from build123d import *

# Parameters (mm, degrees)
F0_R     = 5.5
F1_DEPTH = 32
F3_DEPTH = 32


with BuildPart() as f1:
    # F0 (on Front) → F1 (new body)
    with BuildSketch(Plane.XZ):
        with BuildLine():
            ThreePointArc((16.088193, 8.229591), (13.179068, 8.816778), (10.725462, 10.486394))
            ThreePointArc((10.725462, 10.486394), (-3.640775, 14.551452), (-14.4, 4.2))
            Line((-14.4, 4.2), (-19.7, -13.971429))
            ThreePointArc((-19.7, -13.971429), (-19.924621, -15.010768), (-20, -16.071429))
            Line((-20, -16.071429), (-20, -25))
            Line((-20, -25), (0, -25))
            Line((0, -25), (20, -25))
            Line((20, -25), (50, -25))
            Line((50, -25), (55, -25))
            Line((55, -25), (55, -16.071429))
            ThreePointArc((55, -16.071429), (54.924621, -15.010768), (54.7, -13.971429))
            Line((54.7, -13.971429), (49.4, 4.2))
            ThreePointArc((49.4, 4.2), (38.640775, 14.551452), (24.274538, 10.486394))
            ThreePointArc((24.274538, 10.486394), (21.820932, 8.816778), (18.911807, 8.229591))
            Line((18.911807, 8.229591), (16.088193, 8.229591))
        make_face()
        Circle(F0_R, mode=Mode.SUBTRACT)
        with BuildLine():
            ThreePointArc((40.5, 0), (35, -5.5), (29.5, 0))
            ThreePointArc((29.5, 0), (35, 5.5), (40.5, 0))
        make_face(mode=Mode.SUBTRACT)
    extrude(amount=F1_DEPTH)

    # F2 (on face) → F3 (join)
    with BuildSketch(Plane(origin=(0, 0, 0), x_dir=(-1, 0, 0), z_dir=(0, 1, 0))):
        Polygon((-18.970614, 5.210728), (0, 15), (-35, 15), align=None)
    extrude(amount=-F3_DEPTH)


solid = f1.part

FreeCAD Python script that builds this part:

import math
import FreeCAD as App
import Part
import Sketcher
Q = App.Units.Quantity


def add_polygon(sketch, points):
    """Adds a closed chain of lines whose ends are joined by coincident constraints."""
    first, n = sketch.GeometryCount, len(points)
    for a, b in zip(points, points[1:] + points[:1]):
        sketch.addGeometry(Part.LineSegment(App.Vector(*a, 0), App.Vector(*b, 0)), False)
    for i in range(n):
        sketch.addConstraint(Sketcher.Constraint("Coincident", first + i, 2, first + (i + 1) % n, 1))

doc = App.newDocument("Part")
body = doc.addObject("PartDesign::Body", "Body")

# Sketch on XZ plane
sketch1 = body.newObject("Sketcher::SketchObject", "Sketch")
sketch1.AttachmentSupport = (doc.getObject("XZ_Plane"), [""])
sketch1.MapMode = "FlatFace"
sketch1.addGeometry([
    Part.ArcOfCircle(Part.Circle(App.Vector(16.1, 15.7, 0), App.Vector(0, 0, 1), 7.5), math.radians(-136), math.radians(-90)),  # 0
    Part.ArcOfCircle(Part.Circle(App.Vector(0, 0, 0), App.Vector(0, 0, 1), 15), math.radians(44), math.radians(164)),  # 1
    Part.LineSegment(App.Vector(-14.4, 4.2, 0), App.Vector(-19.7, -14, 0)),  # 2
    Part.ArcOfCircle(Part.Circle(App.Vector(-12.5, -16.1, 0), App.Vector(0, 0, 1), 7.5), math.radians(163.74), math.radians(180)),  # 3
    Part.LineSegment(App.Vector(-20, -16.1, 0), App.Vector(-20, -25, 0)),  # 4
    Part.LineSegment(App.Vector(-20, -25, 0), App.Vector(55, -25, 0)),  # 5
    Part.LineSegment(App.Vector(55, -25, 0), App.Vector(55, -16.1, 0)),  # 6
    Part.ArcOfCircle(Part.Circle(App.Vector(47.5, -16.1, 0), App.Vector(0, 0, 1), 7.5), math.radians(0), math.radians(16.26)),  # 7
    Part.LineSegment(App.Vector(54.7, -14, 0), App.Vector(49.4, 4.2, 0)),  # 8
    Part.ArcOfCircle(Part.Circle(App.Vector(35, 0, 0), App.Vector(0, 0, 1), 15), math.radians(16), math.radians(136)),  # 9
    Part.ArcOfCircle(Part.Circle(App.Vector(18.9, 15.7, 0), App.Vector(0, 0, 1), 7.5), math.radians(-90), math.radians(-44)),  # 10
    Part.LineSegment(App.Vector(18.9, 8.2, 0), App.Vector(16.1, 8.2, 0)),  # 11
    Part.Circle(App.Vector(0, 0, 0), App.Vector(0, 0, 1), 5.5),  # 12
    Part.Circle(App.Vector(35, 0, 0), App.Vector(0, 0, 1), 5.5),  # 13
], False)
sketch1.addConstraint([
    Sketcher.Constraint("Tangent", 0, 1, 1, 1),
    Sketcher.Constraint("Tangent", 1, 2, 2, 1),
    Sketcher.Constraint("Tangent", 2, 2, 3, 1),
    Sketcher.Constraint("Tangent", 3, 2, 4, 1),
    Sketcher.Constraint("Coincident", 4, 2, 5, 1),
    Sketcher.Constraint("Coincident", 5, 2, 6, 1),
    Sketcher.Constraint("Tangent", 6, 2, 7, 1),
    Sketcher.Constraint("Tangent", 7, 2, 8, 1),
    Sketcher.Constraint("Tangent", 8, 2, 9, 1),
    Sketcher.Constraint("Tangent", 9, 2, 10, 2),
    Sketcher.Constraint("Tangent", 10, 1, 11, 1),
    Sketcher.Constraint("Tangent", 11, 2, 0, 2),
    Sketcher.Constraint("Vertical", 4),
    Sketcher.Constraint("Horizontal", 5),
    Sketcher.Constraint("Vertical", 6),
    Sketcher.Constraint("Horizontal", 11),
    Sketcher.Constraint("Coincident", 1, 3, -1, 1),
    Sketcher.Constraint("Coincident", 12, 3, -1, 1),
    Sketcher.Constraint("Coincident", 13, 3, 9, 3),
    Sketcher.Constraint("Equal", 3, 7),
    Sketcher.Constraint("Equal", 1, 9),
    Sketcher.Constraint("Equal", 0, 10),
    Sketcher.Constraint("Equal", 12, 13),
    Sketcher.Constraint("PointOnObject", 9, 3, -1),
    Sketcher.Constraint("Horizontal", 3, 3, 7, 3),
    Sketcher.Constraint("Horizontal", 2, 2, 7, 2),
    Sketcher.Constraint("Diameter", 12, Q("11 mm")),
    Sketcher.Constraint("Radius", 1, Q("15 mm")),
    Sketcher.Constraint("DistanceX", 5, 1, 5, 2, Q("75 mm")),
    Sketcher.Constraint("DistanceX", -1, 1, 9, 3, Q("35 mm")),
    Sketcher.Constraint("DistanceY", 4, 2, -1, 1, Q("25 mm")),
    Sketcher.Constraint("DistanceX", 1, 2, -1, 1, Q("14.4 mm")),
    Sketcher.Constraint("DistanceX", 2, 2, -1, 1, Q("19.7 mm")),
    Sketcher.Constraint("Radius", 0, Q("7.500006 mm")),
    Sketcher.Constraint("DistanceX", 11, 2, 11, 1, Q("2.823614 mm")),
])
pad1 = body.newObject("PartDesign::Pad", "Pad")
pad1.Profile = sketch1
pad1.Length = 32

# Sketch on XZ plane
sketch2 = body.newObject("Sketcher::SketchObject", "Sketch001")
sketch2.AttachmentSupport = (doc.getObject("XZ_Plane"), [""])
sketch2.MapMode = "FlatFace"
add_polygon(sketch2, [(19, 5), (0, 15), (35, 15)])  # lines 0-2
sketch2.addConstraint([
    Sketcher.Constraint("Horizontal", 1),
    Sketcher.Constraint("PointOnObject", 0, 2, -2),
    Sketcher.Constraint("DistanceX", 1, 1, 1, 2, Q("35 mm")),
    Sketcher.Constraint("DistanceY", -1, 1, 0, 2, Q("15 mm")),
    Sketcher.Constraint("Distance", 2, Q("18.782201 mm")),
    Sketcher.Constraint("Distance", 0, Q("21.34746 mm")),
])
pad2 = body.newObject("PartDesign::Pad", "Pad001")
pad2.Profile = sketch2
pad2.Length = 32

doc.recompute()
